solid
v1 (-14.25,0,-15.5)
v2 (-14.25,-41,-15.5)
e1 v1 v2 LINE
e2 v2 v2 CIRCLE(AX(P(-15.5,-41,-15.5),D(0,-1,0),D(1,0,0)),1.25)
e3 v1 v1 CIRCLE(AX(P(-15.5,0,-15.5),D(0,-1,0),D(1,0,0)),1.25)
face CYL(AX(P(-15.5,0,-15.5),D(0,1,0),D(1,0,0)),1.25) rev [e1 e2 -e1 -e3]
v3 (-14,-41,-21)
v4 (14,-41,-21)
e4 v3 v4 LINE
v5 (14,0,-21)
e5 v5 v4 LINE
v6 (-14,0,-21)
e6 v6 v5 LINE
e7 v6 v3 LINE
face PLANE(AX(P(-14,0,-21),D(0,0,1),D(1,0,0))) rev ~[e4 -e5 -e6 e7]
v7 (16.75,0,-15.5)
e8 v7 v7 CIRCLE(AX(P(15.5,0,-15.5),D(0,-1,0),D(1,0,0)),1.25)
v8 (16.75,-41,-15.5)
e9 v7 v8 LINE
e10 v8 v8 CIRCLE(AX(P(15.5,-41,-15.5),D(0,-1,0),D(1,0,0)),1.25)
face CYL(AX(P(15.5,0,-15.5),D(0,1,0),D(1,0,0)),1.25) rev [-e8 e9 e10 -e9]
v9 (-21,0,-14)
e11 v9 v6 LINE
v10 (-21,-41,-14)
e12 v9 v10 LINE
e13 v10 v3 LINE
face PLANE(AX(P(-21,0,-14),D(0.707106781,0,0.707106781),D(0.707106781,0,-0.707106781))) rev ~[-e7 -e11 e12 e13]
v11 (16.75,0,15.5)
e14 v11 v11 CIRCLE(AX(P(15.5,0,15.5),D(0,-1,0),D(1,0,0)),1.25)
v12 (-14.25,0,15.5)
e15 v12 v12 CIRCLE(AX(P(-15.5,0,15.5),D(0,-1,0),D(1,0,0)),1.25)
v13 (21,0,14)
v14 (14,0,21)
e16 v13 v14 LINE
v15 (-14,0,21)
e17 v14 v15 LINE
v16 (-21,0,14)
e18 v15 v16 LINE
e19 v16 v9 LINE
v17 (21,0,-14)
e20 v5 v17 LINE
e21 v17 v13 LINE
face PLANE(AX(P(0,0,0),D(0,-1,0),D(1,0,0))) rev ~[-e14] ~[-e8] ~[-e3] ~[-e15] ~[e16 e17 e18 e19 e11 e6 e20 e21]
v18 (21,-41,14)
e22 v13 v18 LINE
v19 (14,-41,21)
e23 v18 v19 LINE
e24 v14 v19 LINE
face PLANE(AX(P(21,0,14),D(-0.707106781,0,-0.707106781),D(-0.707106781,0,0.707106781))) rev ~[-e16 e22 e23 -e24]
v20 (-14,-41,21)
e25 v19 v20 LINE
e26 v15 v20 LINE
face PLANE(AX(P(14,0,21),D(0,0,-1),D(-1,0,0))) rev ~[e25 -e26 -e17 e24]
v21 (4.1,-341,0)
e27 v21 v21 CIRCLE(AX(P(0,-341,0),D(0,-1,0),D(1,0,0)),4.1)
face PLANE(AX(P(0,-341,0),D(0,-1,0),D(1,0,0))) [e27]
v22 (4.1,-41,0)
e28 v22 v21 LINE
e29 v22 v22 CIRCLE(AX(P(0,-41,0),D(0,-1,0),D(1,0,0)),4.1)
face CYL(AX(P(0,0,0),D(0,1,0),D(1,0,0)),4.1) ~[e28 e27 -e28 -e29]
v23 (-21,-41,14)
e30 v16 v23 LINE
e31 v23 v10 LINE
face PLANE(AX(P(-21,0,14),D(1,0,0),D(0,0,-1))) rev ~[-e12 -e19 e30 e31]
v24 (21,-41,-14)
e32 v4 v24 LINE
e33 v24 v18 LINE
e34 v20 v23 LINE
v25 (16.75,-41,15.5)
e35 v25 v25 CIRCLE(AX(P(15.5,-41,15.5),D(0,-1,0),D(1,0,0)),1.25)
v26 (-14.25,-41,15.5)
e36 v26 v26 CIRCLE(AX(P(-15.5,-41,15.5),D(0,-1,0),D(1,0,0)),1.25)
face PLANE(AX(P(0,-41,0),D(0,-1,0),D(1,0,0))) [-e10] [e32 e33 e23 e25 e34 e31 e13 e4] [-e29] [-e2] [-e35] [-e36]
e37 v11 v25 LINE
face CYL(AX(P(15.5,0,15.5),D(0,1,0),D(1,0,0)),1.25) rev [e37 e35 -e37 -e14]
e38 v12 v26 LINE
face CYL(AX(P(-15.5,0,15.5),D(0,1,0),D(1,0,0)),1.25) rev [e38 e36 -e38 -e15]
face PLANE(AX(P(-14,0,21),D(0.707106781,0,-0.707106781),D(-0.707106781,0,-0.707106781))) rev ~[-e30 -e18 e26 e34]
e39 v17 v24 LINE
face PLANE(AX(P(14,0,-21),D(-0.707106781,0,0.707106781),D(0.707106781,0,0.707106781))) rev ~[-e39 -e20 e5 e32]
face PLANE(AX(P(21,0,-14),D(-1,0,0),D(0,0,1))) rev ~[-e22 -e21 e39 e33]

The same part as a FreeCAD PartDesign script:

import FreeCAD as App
import Part
import Sketcher
from FreeCAD import Vector

doc = App.newDocument("Part")
body = doc.addObject("PartDesign::Body", "Body")

# Sketch on XZ plane
sketch1 = body.newObject("Sketcher::SketchObject", "Sketch")
sketch1.AttachmentSupport = (doc.getObject("XZ_Plane"), [""])
sketch1.MapMode = "FlatFace"
sketch1.addGeometry([
    Part.LineSegment(Vector(21, 14, 0), Vector(14, 21, 0)),  # 0
    Part.LineSegment(Vector(14, 21, 0), Vector(-14, 21, 0)),  # 1
    Part.LineSegment(Vector(-14, 21, 0), Vector(-21, 14, 0)),  # 2
    Part.LineSegment(Vector(-21, 14, 0), Vector(-21, -14, 0)),  # 3
    Part.LineSegment(Vector(-21, -14, 0), Vector(-14, -21, 0)),  # 4
    Part.LineSegment(Vector(-14, -21, 0), Vector(14, -21, 0)),  # 5
    Part.LineSegment(Vector(14, -21, 0), Vector(21, -14, 0)),  # 6
    Part.LineSegment(Vector(21, -14, 0), Vector(21, 14, 0)),  # 7
    Part.Circle(Vector(-15.5, -15.5, 0), Vector(0, 0, 1), 1.2),  # 8
    Part.Circle(Vector(15.5, -15.5, 0), Vector(0, 0, 1), 1.2),  # 9
    Part.Circle(Vector(-15.5, 15.5, 0), Vector(0, 0, 1), 1.2),  # 10
    Part.Circle(Vector(0, 0, 0), Vector(0, 0, 1), 4.1),  # 11
    Part.Circle(Vector(15.5, 15.5, 0), Vector(0, 0, 1), 1.2),  # 12
], False)
sketch1.addConstraint([
    Sketcher.Constraint("Coincident", 0, 2, 1, 1),
    Sketcher.Constraint("Coincident", 1, 2, 2, 1),
    Sketcher.Constraint("Coincident", 2, 2, 3, 1),
    Sketcher.Constraint("Coincident", 3, 2, 4, 1),
    Sketcher.Constraint("Coincident", 4, 2, 5, 1),
    Sketcher.Constraint("Coincident", 5, 2, 6, 1),
    Sketcher.Constraint("Coincident", 6, 2, 7, 1),
    Sketcher.Constraint("Coincident", 7, 2, 0, 1),
    Sketcher.Constraint("Horizontal", 1),
    Sketcher.Constraint("Vertical", 3),
    Sketcher.Constraint("Horizontal", 5),
    Sketcher.Constraint("Vertical", 7),
    Sketcher.Constraint("Coincident", 11, 3, -1, 1),
    Sketcher.Constraint("Equal", 8, 9),
    Sketcher.Constraint("Equal", 9, 10),
    Sketcher.Constraint("Equal", 10, 12),
    Sketcher.Constraint("Symmetric", 9, 3, 10, 3, -1, 1),
    Sketcher.Constraint("Symmetric", 8, 3, 12, 3, -1, 1),
    Sketcher.Constraint("Symmetric", 0, 2, 4, 2, -1, 1),
    Sketcher.Constraint("Symmetric", 2, 2, 6, 2, -1, 1),
    Sketcher.Constraint("Symmetric", 8, 3, 9, 3, -2),
    Sketcher.Constraint("Perpendicular", 0, 2),
    Sketcher.Constraint("Perpendicular", 2, 4),
    Sketcher.Constraint("Perpendicular", 4, 6),
    Sketcher.Constraint("Horizontal", 3, 2, 6, 2),
    Sketcher.Constraint("Vertical", 1, 2, 4, 2),
    Sketcher.Constraint("Equal", 5, 3),
    Sketcher.Constraint("Diameter", 8, 2.5),
    Sketcher.Constraint("Diameter", 11, 8.2),
    Sketcher.Constraint("DistanceX", 1, 2, 1, 1, 28.0),
    Sketcher.Constraint("DistanceY", -1, 1, 0, 2, 21.0),
    Sketcher.Constraint("DistanceX", 8, 3, 9, 3, 31.0),
    Sketcher.Constraint("DistanceY", 8, 3, 10, 3, 31.0),
])
pad1 = body.newObject("PartDesign::Pad", "Pad")
pad1.Profile = sketch1
pad1.Length = 41

# Sketch on XZ plane
sketch2 = body.newObject("Sketcher::SketchObject", "Sketch001")
sketch2.AttachmentSupport = (doc.getObject("XZ_Plane"), [""])
sketch2.MapMode = "FlatFace"
sketch2.addGeometry(Part.Circle(Vector(0, 0, 0), Vector(0, 0, 1), 4.1), False)
sketch2.addConstraint([
    Sketcher.Constraint("Coincident", 0, 3, -1, 1),
    Sketcher.Constraint("Diameter", 0, 8.2),
])
pad2 = body.newObject("PartDesign::Pad", "Pad001")
pad2.Profile = sketch2
pad2.Length = 341

doc.recompute()
